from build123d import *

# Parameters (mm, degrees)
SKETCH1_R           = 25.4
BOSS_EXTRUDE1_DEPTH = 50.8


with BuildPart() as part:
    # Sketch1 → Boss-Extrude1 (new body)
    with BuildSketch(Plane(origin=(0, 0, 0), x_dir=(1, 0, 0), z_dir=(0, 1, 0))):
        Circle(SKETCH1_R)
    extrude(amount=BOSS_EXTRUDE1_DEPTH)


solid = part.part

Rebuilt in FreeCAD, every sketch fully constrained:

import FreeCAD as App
import Part
import Sketcher
from FreeCAD import Vector
Q = App.Units.Quantity

doc = App.newDocument("Part")
body = doc.addObject("PartDesign::Body", "Body")

# Sketch on XZ plane
sketch1 = doc.addObject("Sketcher::SketchObject", "Sketch")
body.addObject(sketch1)
sketch1.AttachmentSupport = (doc.XZ_Plane, [""])
sketch1.MapMode = "FlatFace"
sketch1.addGeometry(Part.Circle(Vector(0, 0, 0), Vector(0, 0, 1), 25), False)
sketch1.addConstraint(Sketcher.Constraint("Coincident", 0, 3, -1, 1))
sketch1.addConstraint(Sketcher.Constraint("Diameter", 0, Q("2 in")))
pad1 = doc.addObject("PartDesign::Pad", "Pad")
body.addObject(pad1)
pad1.Profile = sketch1
pad1.Length = Q("2 in")
pad1.Reversed = True

doc.recompute()
